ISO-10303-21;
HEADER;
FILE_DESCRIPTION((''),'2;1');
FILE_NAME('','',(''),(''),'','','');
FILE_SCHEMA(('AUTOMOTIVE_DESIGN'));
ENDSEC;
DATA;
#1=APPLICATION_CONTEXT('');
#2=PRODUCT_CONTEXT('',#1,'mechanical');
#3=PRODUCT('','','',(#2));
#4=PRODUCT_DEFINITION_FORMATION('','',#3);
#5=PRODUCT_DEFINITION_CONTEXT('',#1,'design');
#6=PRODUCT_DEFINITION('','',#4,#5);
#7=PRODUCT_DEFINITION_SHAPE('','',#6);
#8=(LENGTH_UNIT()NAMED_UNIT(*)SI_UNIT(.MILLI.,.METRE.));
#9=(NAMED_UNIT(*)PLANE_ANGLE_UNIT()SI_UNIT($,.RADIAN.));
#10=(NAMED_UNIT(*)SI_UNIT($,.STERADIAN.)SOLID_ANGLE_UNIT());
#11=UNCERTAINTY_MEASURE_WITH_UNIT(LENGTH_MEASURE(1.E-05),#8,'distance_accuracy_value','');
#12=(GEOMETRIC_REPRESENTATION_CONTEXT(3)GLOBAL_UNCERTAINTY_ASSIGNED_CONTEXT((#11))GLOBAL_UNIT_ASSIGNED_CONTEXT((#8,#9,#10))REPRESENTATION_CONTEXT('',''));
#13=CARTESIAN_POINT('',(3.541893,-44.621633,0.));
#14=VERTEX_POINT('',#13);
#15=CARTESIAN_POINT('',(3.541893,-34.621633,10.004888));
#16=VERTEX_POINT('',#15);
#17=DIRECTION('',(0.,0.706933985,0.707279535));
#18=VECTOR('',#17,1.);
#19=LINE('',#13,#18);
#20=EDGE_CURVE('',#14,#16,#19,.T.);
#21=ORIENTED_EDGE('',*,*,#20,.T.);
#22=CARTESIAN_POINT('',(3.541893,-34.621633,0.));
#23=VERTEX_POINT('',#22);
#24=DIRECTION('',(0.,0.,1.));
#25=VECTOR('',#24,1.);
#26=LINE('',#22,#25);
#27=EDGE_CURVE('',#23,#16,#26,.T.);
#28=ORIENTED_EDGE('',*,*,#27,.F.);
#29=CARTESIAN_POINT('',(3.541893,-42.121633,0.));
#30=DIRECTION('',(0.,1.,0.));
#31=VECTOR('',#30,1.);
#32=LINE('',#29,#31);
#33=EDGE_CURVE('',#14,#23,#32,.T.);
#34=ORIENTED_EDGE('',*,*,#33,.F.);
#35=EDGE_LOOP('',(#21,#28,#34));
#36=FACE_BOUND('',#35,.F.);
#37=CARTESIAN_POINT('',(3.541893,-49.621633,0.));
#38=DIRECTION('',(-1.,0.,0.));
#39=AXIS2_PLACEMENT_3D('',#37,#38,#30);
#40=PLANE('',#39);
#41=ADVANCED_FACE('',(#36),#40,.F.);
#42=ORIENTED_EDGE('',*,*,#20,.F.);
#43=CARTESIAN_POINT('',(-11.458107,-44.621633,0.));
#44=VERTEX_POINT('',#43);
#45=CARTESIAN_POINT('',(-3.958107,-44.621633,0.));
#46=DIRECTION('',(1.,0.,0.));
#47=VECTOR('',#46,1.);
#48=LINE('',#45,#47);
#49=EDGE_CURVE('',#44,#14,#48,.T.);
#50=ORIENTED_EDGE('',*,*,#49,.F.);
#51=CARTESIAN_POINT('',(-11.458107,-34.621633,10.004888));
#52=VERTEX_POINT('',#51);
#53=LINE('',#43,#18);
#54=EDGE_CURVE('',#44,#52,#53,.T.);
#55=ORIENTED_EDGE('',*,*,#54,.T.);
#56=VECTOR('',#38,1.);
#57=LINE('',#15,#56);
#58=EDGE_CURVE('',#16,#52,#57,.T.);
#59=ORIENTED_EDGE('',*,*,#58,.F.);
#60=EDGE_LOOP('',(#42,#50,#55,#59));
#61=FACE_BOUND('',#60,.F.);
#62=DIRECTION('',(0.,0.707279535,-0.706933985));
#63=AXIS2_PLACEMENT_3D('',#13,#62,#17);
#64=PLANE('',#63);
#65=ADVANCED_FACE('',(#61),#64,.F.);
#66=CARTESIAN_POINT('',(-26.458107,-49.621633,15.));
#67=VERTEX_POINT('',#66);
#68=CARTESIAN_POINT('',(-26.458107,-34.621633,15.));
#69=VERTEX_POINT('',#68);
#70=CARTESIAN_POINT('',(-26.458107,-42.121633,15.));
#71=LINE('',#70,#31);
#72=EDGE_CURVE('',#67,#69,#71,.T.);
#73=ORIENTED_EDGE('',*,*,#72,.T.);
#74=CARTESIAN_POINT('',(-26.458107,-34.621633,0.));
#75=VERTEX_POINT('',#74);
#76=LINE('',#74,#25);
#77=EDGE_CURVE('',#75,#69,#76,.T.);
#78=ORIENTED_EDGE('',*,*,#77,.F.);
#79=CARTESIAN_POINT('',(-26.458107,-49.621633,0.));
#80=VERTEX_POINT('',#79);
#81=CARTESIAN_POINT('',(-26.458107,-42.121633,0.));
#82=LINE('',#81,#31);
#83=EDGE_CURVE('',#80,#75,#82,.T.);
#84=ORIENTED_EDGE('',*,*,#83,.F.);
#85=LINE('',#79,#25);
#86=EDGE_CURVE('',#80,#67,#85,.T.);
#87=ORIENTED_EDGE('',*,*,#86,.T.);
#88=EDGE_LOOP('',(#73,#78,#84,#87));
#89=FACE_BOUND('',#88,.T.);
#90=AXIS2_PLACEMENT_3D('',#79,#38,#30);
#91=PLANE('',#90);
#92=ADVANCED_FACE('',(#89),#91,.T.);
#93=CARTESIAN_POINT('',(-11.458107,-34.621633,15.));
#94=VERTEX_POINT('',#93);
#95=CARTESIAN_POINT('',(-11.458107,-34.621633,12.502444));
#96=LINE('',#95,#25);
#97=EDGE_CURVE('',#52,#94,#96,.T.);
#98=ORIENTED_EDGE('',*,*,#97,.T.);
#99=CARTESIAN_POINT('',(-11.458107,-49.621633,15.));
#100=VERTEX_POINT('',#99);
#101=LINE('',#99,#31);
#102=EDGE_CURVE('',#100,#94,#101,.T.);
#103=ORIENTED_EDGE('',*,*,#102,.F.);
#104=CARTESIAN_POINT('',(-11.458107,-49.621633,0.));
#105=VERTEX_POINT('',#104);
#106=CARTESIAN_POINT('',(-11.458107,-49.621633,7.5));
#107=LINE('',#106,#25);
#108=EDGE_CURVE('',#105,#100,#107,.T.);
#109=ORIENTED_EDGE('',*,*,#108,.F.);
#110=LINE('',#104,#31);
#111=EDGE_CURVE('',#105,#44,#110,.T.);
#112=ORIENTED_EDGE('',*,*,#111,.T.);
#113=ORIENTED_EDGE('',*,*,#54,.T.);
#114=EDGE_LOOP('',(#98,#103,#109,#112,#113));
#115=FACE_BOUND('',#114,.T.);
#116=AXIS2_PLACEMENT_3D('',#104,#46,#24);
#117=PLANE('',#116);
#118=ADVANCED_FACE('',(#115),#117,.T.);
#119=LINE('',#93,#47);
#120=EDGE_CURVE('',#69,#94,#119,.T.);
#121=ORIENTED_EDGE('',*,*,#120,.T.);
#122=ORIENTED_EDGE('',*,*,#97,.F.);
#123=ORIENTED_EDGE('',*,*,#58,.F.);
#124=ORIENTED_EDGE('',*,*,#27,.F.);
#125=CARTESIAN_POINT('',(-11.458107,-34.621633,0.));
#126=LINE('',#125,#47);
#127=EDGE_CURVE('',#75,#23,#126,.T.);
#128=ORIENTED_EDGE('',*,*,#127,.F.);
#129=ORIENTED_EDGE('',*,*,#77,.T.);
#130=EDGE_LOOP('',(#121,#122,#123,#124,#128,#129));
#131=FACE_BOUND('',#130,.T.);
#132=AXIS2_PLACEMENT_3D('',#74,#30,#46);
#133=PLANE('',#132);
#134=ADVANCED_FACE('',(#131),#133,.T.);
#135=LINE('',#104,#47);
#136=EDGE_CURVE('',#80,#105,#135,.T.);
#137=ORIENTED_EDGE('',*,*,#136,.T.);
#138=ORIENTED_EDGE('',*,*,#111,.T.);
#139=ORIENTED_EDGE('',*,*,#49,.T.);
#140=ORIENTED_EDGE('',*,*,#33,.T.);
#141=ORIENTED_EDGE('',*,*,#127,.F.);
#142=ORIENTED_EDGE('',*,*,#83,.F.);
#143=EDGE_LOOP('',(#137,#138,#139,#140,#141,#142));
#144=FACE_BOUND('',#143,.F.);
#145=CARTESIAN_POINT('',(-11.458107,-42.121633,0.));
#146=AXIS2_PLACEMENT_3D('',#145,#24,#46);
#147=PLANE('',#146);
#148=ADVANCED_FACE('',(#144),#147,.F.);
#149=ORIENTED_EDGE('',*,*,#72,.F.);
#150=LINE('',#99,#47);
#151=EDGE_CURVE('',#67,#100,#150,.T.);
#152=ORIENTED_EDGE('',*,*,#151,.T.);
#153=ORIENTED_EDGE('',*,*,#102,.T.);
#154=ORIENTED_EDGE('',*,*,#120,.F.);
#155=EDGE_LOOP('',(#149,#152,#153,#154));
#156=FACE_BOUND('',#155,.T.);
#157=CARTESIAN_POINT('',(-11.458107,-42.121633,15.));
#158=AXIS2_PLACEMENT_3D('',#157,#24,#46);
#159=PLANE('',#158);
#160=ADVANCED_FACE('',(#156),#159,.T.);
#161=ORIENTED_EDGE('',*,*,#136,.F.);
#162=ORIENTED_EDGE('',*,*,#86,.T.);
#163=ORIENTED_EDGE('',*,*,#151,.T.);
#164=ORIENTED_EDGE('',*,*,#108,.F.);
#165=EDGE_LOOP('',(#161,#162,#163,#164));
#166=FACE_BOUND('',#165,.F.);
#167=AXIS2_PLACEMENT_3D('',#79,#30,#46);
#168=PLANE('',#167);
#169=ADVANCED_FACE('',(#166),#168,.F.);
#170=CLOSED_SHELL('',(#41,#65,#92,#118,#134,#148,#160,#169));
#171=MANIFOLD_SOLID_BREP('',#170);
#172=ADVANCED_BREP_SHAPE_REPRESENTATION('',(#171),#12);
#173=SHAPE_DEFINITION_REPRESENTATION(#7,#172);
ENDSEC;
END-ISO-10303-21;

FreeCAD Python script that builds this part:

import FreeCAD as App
import Part
import Sketcher
from FreeCAD import Vector
Q = App.Units.Quantity

doc = App.newDocument("Part")
body = doc.addObject("PartDesign::Body", "Body")

sketch1 = body.newObject("Sketcher::SketchObject", "Sketch")
sketch1.AttachmentSupport = (doc.getObject("XY_Plane"), [""])
sketch1.MapMode = "FlatFace"
sketch1.addGeometry(Part.LineSegment(Vector(-26.458107, -34.621633, 0), Vector(-26.458107, -49.621633, 0)), False)
sketch1.addGeometry(Part.LineSegment(Vector(-26.458107, -49.621633, 0), Vector(3.541893, -49.621633, 0)), False)
sketch1.addGeometry(Part.LineSegment(Vector(3.541893, -49.621633, 0), Vector(3.541893, -34.621633, 0)), False)
sketch1.addGeometry(Part.LineSegment(Vector(3.541893, -34.621633, 0), Vector(-26.458107, -34.621633, 0)), False)
sketch1.addConstraint(Sketcher.Constraint("Coincident", 0, 2, 1, 1))
sketch1.addConstraint(Sketcher.Constraint("Coincident", 1, 2, 2, 1))
sketch1.addConstraint(Sketcher.Constraint("Coincident", 2, 2, 3, 1))
sketch1.addConstraint(Sketcher.Constraint("Coincident", 3, 2, 0, 1))
sketch1.addConstraint(Sketcher.Constraint("Vertical", 0))
sketch1.addConstraint(Sketcher.Constraint("Horizontal", 1))
sketch1.addConstraint(Sketcher.Constraint("Vertical", 2))
sketch1.addConstraint(Sketcher.Constraint("Horizontal", 3))
sketch1.addConstraint(Sketcher.Constraint("DistanceX", 1, 1, 1, 2, Q("30 mm")))
sketch1.addConstraint(Sketcher.Constraint("DistanceY", 0, 2, 0, 1, Q("15 mm")))
sketch1.addConstraint(Sketcher.Constraint("DistanceX", 0, 2, -1, 1, Q("26.458107 mm")))
sketch1.addConstraint(Sketcher.Constraint("DistanceY", 0, 2, -1, 1, Q("49.621633 mm")))
pad1 = body.newObject("PartDesign::Pad", "Pad")
pad1.Profile = sketch1
pad1.Length = 15

sketch2 = body.newObject("Sketcher::SketchObject", "Sketch001")
sketch2.AttachmentSupport = (doc.getObject("XZ_Plane"), [""])
sketch2.MapMode = "FlatFace"
sketch2.AttachmentOffset = App.Placement(Vector(0, 0, 49.621633), App.Rotation())
sketch2.addGeometry(Part.LineSegment(Vector(-11.458107, 15, 0), Vector(-11.458107, 0, 0)), False)
sketch2.addGeometry(Part.LineSegment(Vector(-11.458107, 0, 0), Vector(3.541893, 0, 0)), False)
sketch2.addGeometry(Part.LineSegment(Vector(3.541893, 0, 0), Vector(3.541893, 15, 0)), False)
sketch2.addGeometry(Part.LineSegment(Vector(3.541893, 15, 0), Vector(-11.458107, 15, 0)), False)
sketch2.addConstraint(Sketcher.Constraint("Coincident", 0, 2, 1, 1))
sketch2.addConstraint(Sketcher.Constraint("Coincident", 1, 2, 2, 1))
sketch2.addConstraint(Sketcher.Constraint("Coincident", 2, 2, 3, 1))
sketch2.addConstraint(Sketcher.Constraint("Coincident", 3, 2, 0, 1))
sketch2.addConstraint(Sketcher.Constraint("Vertical", 0))
sketch2.addConstraint(Sketcher.Constraint("Horizontal", 1))
sketch2.addConstraint(Sketcher.Constraint("Vertical", 2))
sketch2.addConstraint(Sketcher.Constraint("Horizontal", 3))
sketch2.addConstraint(Sketcher.Constraint("PointOnObject", 0, 2, -1))
sketch2.addConstraint(Sketcher.Constraint("Equal", 3, 0))
sketch2.addConstraint(Sketcher.Constraint("DistanceX", 1, 1, 1, 2, Q("15 mm")))
sketch2.addConstraint(Sketcher.Constraint("DistanceX", 0, 2, -1, 1, Q("11.458107 mm")))
pocket1 = body.newObject("PartDesign::Pocket", "Pocket")
pocket1.Profile = sketch2
pocket1.Length = 5

sketch3 = body.newObject("Sketcher::SketchObject", "Sketch002")
sketch3.AttachmentSupport = (doc.getObject("YZ_Plane"), [""])
sketch3.MapMode = "FlatFace"
sketch3.AttachmentOffset = App.Placement(Vector(0, 0, 3.541893), App.Rotation())
sketch3.addGeometry(Part.LineSegment(Vector(-44.621633, 15, 0), Vector(-44.621633, 10.004888, 0)), False)
sketch3.addGeometry(Part.LineSegment(Vector(-44.621633, 10.004888, 0), Vector(-34.621633, 10.004888, 0)), False)
sketch3.addGeometry(Part.LineSegment(Vector(-34.621633, 10.004888, 0), Vector(-34.621633, 15, 0)), False)
sketch3.addGeometry(Part.LineSegment(Vector(-34.621633, 15, 0), Vector(-44.621633, 15, 0)), False)
sketch3.addConstraint(Sketcher.Constraint("Coincident", 0, 2, 1, 1))
sketch3.addConstraint(Sketcher.Constraint("Coincident", 1, 2, 2, 1))
sketch3.addConstraint(Sketcher.Constraint("Coincident", 2, 2, 3, 1))
sketch3.addConstraint(Sketcher.Constraint("Coincident", 3, 2, 0, 1))
sketch3.addConstraint(Sketcher.Constraint("Vertical", 0))
sketch3.addConstraint(Sketcher.Constraint("Horizontal", 1))
sketch3.addConstraint(Sketcher.Constraint("Vertical", 2))
sketch3.addConstraint(Sketcher.Constraint("Horizontal", 3))
sketch3.addConstraint(Sketcher.Constraint("DistanceX", 1, 1, 1, 2, Q("10 mm")))
sketch3.addConstraint(Sketcher.Constraint("DistanceY", -1, 1, 2, 2, Q("15 mm")))
sketch3.addConstraint(Sketcher.Constraint("DistanceY", 0, 2, 0, 1, Q("4.995112 mm")))
sketch3.addConstraint(Sketcher.Constraint("DistanceX", 0, 2, -1, 1, Q("44.621633 mm")))
pocket2 = body.newObject("PartDesign::Pocket", "Pocket001")
pocket2.Profile = sketch3
pocket2.Length = 15

sketch4 = body.newObject("Sketcher::SketchObject", "Sketch003")
sketch4.AttachmentSupport = (doc.getObject("YZ_Plane"), [""])
sketch4.MapMode = "FlatFace"
sketch4.AttachmentOffset = App.Placement(Vector(0, 0, 3.541893), App.Rotation())
sketch4.addGeometry(Part.LineSegment(Vector(-44.621633, 10.004888, 0), Vector(-44.621633, 0, 0)), False)
sketch4.addGeometry(Part.LineSegment(Vector(-44.621633, 0, 0), Vector(-34.621633, 10.004888, 0)), False)
sketch4.addGeometry(Part.LineSegment(Vector(-34.621633, 10.004888, 0), Vector(-44.621633, 10.004888, 0)), False)
sketch4.addConstraint(Sketcher.Constraint("Coincident", 0, 2, 1, 1))
sketch4.addConstraint(Sketcher.Constraint("Coincident", 1, 2, 2, 1))
sketch4.addConstraint(Sketcher.Constraint("Coincident", 2, 2, 0, 1))
sketch4.addConstraint(Sketcher.Constraint("Vertical", 0))
sketch4.addConstraint(Sketcher.Constraint("Horizontal", 2))
sketch4.addConstraint(Sketcher.Constraint("PointOnObject", 0, 2, -1))
sketch4.addConstraint(Sketcher.Constraint("DistanceX", 2, 2, 2, 1, Q("10 mm")))
sketch4.addConstraint(Sketcher.Constraint("DistanceY", 0, 2, 0, 1, Q("10.004888 mm")))
sketch4.addConstraint(Sketcher.Constraint("DistanceX", 0, 2, -1, 1, Q("44.621633 mm")))
pocket3 = body.newObject("PartDesign::Pocket", "Pocket002")
pocket3.Profile = sketch4
pocket3.Length = 15

doc.recompute()
